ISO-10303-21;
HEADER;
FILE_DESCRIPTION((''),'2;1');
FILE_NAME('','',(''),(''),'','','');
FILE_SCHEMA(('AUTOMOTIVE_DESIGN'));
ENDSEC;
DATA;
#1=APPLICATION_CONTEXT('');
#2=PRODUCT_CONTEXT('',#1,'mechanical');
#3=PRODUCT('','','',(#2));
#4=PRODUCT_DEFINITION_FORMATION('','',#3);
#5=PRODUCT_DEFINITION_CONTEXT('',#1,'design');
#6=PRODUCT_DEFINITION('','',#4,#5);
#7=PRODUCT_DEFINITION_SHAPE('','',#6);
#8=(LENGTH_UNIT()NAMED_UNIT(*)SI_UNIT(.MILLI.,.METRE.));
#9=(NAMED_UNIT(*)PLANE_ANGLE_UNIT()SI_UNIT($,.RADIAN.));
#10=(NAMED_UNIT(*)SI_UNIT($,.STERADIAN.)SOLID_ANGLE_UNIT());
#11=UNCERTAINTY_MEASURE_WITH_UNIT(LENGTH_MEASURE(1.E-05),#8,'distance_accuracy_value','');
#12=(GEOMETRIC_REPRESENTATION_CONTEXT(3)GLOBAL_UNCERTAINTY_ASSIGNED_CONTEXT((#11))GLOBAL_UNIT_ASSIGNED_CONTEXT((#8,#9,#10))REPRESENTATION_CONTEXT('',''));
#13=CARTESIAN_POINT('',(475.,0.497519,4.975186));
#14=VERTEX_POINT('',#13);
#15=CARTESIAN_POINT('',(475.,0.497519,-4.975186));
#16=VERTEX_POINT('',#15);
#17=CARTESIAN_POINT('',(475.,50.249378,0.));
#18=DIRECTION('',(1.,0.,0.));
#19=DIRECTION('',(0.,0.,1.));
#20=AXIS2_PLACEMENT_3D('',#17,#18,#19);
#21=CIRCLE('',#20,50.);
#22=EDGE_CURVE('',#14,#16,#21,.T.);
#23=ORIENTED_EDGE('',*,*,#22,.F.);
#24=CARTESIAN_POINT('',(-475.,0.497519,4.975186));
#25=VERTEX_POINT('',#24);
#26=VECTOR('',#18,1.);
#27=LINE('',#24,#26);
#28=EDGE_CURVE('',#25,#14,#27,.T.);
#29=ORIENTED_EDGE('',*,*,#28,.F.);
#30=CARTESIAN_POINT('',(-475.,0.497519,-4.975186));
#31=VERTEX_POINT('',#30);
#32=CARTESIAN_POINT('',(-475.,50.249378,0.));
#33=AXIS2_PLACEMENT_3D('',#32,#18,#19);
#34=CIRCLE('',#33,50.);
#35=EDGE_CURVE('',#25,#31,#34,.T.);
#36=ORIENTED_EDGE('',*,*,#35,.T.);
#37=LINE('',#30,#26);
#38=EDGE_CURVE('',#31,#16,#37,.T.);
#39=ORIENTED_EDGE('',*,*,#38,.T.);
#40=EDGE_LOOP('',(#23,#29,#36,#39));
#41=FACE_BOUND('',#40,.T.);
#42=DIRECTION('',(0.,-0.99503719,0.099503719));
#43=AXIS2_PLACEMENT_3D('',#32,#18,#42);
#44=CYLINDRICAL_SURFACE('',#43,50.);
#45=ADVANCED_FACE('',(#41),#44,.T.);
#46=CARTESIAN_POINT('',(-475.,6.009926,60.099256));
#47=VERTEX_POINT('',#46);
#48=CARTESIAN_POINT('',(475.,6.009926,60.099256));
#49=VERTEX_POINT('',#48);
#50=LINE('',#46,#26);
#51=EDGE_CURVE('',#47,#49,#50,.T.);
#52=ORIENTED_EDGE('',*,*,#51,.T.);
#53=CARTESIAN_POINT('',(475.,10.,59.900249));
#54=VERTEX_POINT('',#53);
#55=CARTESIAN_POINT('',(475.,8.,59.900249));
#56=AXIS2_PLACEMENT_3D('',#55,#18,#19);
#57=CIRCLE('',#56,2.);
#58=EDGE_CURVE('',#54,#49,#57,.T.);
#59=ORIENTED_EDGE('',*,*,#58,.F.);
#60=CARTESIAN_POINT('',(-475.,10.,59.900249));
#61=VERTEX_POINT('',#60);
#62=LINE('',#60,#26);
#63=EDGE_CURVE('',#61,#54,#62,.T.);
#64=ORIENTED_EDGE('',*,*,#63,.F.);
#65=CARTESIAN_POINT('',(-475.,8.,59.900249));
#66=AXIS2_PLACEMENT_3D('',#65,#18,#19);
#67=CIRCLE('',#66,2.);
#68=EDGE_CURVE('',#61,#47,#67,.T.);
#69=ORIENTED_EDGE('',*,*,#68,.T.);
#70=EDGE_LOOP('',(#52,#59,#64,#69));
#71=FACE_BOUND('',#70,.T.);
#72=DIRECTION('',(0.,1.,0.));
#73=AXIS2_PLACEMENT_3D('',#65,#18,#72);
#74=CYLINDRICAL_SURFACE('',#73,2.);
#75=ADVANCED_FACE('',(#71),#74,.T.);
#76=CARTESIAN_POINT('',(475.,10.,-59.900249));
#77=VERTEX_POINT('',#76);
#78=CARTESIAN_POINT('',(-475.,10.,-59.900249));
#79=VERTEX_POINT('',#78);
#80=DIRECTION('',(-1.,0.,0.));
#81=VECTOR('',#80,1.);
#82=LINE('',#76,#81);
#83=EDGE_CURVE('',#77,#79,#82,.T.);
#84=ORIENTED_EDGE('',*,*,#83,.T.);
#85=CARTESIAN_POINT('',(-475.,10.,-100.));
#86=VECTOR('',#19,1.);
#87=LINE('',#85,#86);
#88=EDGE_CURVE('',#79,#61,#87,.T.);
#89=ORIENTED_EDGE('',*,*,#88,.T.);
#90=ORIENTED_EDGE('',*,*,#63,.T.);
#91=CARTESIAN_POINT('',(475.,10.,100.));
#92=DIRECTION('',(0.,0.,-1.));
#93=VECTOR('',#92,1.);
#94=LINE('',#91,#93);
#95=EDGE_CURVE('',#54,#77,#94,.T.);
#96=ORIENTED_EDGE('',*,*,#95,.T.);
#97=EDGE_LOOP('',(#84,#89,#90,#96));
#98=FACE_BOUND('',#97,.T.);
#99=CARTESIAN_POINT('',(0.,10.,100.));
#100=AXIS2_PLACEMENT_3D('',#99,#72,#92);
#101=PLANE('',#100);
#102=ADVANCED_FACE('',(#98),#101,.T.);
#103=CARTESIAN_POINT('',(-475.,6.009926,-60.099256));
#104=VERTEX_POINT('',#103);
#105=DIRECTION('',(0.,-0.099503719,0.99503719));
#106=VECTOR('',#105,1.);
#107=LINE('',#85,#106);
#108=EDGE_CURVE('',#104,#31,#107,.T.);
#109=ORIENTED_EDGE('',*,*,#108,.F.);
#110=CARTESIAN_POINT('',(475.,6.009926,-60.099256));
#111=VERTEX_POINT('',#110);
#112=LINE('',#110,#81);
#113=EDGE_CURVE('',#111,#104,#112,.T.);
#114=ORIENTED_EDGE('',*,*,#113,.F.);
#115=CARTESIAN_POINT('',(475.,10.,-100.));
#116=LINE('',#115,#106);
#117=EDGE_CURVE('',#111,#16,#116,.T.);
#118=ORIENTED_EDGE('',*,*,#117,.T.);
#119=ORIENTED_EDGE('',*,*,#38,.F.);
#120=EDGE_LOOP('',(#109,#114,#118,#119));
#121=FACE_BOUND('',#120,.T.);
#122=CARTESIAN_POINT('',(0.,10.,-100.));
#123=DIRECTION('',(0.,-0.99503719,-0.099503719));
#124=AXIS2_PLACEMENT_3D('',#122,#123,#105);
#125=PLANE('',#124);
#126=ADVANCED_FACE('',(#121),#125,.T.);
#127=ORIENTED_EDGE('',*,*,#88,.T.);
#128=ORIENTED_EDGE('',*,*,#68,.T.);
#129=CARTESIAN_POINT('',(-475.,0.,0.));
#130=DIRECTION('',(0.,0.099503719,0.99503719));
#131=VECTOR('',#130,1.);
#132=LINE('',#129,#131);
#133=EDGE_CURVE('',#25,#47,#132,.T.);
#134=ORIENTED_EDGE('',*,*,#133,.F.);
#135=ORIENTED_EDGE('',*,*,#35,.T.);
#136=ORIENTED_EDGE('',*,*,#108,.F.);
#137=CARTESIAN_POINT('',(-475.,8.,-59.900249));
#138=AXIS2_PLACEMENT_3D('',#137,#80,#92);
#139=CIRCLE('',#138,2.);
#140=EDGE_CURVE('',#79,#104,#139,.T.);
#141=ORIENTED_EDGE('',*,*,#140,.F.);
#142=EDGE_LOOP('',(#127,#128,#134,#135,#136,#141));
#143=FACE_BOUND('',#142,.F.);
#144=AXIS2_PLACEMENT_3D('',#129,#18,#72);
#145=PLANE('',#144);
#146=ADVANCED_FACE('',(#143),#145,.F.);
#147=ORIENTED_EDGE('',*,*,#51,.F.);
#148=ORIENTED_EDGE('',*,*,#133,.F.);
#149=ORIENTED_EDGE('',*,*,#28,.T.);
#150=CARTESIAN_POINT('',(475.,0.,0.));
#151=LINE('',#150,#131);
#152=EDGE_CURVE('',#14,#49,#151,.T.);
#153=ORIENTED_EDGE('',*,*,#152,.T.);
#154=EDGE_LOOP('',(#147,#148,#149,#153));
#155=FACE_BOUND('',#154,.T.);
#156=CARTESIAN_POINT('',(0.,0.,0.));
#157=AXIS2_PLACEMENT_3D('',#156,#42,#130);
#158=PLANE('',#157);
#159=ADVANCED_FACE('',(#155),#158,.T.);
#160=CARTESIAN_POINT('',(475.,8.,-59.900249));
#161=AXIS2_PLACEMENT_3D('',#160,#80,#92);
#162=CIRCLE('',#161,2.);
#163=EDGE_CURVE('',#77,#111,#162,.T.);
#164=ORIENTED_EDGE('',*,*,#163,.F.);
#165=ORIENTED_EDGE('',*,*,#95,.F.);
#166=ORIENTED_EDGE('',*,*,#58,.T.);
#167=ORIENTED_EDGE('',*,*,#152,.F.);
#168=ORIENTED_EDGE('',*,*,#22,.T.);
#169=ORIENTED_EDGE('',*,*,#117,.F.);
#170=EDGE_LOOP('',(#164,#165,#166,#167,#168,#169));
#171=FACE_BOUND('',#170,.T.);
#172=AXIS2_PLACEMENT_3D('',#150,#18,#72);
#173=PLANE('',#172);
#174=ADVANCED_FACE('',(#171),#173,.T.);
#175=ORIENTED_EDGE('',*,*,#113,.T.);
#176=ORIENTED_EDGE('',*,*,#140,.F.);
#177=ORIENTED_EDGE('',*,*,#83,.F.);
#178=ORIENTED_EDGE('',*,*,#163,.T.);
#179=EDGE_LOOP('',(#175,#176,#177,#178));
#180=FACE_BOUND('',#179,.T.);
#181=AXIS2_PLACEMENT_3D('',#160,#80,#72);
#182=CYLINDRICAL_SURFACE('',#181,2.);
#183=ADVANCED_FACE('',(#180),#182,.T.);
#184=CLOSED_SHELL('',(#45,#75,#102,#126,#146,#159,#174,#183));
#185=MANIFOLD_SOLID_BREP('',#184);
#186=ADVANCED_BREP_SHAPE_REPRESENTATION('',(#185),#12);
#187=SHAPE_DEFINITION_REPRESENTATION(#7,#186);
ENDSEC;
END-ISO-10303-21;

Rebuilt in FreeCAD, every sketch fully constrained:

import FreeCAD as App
import Part
import Sketcher

V = App.Vector
Q = App.Units.Quantity


def edges_at(feature, points):
    """Names of the edges that pass closest to the given points."""
    edges = feature.Shape.Edges
    near = lambda p: min(range(len(edges)), key=lambda i: edges[i].distToShape(Part.Vertex(*p))[0])
    return sorted({f"Edge{near(p) + 1}" for p in points})

doc = App.newDocument("Part")
body = doc.addObject("PartDesign::Body", "Body")

# Sketch on YZ plane
sketch1 = body.newObject("Sketcher::SketchObject", "Sketch")
sketch1.AttachmentSupport = (doc.getObject("YZ_Plane"), [""])
sketch1.MapMode = "FlatFace"
sketch1.addGeometry([
    Part.LineSegment(V(10, 100, 0), V(0, 0, 0)),
    Part.LineSegment(V(0, 0, 0), V(10, -100, 0)),
    Part.LineSegment(V(10, -100, 0), V(10, 100, 0)),
], False)
sketch1.addConstraint([
    Sketcher.Constraint("Coincident", 0, 2, 1, 1),
    Sketcher.Constraint("Coincident", 1, 2, 2, 1),
    Sketcher.Constraint("Coincident", 2, 2, 0, 1),
    Sketcher.Constraint("Vertical", 2),
    Sketcher.Constraint("Coincident", 0, 2, -1, 1),
    Sketcher.Constraint("Equal", 0, 1),
    Sketcher.Constraint("DistanceY", 2, 1, 2, 2, Q("200 mm")),
    Sketcher.Constraint("DistanceX", -1, 1, 1, 2, Q("10 mm")),
])
pad1 = body.newObject("PartDesign::Pad", "Pad")
pad1.Profile = sketch1
pad1.Length = 950
pad1.Midplane = True
doc.recompute()

fillet = body.newObject("PartDesign::Fillet", "Fillet")
fillet.Base = (pad1, edges_at(pad1, [(0, 10, 100), (0, 10, -100)]))
fillet.Radius = 2
doc.recompute()

fillet2 = body.newObject("PartDesign::Fillet", "Fillet001")
fillet2.Base = (fillet, edges_at(fillet, [(0, 0, 0)]))
fillet2.Radius = 50

doc.recompute()
